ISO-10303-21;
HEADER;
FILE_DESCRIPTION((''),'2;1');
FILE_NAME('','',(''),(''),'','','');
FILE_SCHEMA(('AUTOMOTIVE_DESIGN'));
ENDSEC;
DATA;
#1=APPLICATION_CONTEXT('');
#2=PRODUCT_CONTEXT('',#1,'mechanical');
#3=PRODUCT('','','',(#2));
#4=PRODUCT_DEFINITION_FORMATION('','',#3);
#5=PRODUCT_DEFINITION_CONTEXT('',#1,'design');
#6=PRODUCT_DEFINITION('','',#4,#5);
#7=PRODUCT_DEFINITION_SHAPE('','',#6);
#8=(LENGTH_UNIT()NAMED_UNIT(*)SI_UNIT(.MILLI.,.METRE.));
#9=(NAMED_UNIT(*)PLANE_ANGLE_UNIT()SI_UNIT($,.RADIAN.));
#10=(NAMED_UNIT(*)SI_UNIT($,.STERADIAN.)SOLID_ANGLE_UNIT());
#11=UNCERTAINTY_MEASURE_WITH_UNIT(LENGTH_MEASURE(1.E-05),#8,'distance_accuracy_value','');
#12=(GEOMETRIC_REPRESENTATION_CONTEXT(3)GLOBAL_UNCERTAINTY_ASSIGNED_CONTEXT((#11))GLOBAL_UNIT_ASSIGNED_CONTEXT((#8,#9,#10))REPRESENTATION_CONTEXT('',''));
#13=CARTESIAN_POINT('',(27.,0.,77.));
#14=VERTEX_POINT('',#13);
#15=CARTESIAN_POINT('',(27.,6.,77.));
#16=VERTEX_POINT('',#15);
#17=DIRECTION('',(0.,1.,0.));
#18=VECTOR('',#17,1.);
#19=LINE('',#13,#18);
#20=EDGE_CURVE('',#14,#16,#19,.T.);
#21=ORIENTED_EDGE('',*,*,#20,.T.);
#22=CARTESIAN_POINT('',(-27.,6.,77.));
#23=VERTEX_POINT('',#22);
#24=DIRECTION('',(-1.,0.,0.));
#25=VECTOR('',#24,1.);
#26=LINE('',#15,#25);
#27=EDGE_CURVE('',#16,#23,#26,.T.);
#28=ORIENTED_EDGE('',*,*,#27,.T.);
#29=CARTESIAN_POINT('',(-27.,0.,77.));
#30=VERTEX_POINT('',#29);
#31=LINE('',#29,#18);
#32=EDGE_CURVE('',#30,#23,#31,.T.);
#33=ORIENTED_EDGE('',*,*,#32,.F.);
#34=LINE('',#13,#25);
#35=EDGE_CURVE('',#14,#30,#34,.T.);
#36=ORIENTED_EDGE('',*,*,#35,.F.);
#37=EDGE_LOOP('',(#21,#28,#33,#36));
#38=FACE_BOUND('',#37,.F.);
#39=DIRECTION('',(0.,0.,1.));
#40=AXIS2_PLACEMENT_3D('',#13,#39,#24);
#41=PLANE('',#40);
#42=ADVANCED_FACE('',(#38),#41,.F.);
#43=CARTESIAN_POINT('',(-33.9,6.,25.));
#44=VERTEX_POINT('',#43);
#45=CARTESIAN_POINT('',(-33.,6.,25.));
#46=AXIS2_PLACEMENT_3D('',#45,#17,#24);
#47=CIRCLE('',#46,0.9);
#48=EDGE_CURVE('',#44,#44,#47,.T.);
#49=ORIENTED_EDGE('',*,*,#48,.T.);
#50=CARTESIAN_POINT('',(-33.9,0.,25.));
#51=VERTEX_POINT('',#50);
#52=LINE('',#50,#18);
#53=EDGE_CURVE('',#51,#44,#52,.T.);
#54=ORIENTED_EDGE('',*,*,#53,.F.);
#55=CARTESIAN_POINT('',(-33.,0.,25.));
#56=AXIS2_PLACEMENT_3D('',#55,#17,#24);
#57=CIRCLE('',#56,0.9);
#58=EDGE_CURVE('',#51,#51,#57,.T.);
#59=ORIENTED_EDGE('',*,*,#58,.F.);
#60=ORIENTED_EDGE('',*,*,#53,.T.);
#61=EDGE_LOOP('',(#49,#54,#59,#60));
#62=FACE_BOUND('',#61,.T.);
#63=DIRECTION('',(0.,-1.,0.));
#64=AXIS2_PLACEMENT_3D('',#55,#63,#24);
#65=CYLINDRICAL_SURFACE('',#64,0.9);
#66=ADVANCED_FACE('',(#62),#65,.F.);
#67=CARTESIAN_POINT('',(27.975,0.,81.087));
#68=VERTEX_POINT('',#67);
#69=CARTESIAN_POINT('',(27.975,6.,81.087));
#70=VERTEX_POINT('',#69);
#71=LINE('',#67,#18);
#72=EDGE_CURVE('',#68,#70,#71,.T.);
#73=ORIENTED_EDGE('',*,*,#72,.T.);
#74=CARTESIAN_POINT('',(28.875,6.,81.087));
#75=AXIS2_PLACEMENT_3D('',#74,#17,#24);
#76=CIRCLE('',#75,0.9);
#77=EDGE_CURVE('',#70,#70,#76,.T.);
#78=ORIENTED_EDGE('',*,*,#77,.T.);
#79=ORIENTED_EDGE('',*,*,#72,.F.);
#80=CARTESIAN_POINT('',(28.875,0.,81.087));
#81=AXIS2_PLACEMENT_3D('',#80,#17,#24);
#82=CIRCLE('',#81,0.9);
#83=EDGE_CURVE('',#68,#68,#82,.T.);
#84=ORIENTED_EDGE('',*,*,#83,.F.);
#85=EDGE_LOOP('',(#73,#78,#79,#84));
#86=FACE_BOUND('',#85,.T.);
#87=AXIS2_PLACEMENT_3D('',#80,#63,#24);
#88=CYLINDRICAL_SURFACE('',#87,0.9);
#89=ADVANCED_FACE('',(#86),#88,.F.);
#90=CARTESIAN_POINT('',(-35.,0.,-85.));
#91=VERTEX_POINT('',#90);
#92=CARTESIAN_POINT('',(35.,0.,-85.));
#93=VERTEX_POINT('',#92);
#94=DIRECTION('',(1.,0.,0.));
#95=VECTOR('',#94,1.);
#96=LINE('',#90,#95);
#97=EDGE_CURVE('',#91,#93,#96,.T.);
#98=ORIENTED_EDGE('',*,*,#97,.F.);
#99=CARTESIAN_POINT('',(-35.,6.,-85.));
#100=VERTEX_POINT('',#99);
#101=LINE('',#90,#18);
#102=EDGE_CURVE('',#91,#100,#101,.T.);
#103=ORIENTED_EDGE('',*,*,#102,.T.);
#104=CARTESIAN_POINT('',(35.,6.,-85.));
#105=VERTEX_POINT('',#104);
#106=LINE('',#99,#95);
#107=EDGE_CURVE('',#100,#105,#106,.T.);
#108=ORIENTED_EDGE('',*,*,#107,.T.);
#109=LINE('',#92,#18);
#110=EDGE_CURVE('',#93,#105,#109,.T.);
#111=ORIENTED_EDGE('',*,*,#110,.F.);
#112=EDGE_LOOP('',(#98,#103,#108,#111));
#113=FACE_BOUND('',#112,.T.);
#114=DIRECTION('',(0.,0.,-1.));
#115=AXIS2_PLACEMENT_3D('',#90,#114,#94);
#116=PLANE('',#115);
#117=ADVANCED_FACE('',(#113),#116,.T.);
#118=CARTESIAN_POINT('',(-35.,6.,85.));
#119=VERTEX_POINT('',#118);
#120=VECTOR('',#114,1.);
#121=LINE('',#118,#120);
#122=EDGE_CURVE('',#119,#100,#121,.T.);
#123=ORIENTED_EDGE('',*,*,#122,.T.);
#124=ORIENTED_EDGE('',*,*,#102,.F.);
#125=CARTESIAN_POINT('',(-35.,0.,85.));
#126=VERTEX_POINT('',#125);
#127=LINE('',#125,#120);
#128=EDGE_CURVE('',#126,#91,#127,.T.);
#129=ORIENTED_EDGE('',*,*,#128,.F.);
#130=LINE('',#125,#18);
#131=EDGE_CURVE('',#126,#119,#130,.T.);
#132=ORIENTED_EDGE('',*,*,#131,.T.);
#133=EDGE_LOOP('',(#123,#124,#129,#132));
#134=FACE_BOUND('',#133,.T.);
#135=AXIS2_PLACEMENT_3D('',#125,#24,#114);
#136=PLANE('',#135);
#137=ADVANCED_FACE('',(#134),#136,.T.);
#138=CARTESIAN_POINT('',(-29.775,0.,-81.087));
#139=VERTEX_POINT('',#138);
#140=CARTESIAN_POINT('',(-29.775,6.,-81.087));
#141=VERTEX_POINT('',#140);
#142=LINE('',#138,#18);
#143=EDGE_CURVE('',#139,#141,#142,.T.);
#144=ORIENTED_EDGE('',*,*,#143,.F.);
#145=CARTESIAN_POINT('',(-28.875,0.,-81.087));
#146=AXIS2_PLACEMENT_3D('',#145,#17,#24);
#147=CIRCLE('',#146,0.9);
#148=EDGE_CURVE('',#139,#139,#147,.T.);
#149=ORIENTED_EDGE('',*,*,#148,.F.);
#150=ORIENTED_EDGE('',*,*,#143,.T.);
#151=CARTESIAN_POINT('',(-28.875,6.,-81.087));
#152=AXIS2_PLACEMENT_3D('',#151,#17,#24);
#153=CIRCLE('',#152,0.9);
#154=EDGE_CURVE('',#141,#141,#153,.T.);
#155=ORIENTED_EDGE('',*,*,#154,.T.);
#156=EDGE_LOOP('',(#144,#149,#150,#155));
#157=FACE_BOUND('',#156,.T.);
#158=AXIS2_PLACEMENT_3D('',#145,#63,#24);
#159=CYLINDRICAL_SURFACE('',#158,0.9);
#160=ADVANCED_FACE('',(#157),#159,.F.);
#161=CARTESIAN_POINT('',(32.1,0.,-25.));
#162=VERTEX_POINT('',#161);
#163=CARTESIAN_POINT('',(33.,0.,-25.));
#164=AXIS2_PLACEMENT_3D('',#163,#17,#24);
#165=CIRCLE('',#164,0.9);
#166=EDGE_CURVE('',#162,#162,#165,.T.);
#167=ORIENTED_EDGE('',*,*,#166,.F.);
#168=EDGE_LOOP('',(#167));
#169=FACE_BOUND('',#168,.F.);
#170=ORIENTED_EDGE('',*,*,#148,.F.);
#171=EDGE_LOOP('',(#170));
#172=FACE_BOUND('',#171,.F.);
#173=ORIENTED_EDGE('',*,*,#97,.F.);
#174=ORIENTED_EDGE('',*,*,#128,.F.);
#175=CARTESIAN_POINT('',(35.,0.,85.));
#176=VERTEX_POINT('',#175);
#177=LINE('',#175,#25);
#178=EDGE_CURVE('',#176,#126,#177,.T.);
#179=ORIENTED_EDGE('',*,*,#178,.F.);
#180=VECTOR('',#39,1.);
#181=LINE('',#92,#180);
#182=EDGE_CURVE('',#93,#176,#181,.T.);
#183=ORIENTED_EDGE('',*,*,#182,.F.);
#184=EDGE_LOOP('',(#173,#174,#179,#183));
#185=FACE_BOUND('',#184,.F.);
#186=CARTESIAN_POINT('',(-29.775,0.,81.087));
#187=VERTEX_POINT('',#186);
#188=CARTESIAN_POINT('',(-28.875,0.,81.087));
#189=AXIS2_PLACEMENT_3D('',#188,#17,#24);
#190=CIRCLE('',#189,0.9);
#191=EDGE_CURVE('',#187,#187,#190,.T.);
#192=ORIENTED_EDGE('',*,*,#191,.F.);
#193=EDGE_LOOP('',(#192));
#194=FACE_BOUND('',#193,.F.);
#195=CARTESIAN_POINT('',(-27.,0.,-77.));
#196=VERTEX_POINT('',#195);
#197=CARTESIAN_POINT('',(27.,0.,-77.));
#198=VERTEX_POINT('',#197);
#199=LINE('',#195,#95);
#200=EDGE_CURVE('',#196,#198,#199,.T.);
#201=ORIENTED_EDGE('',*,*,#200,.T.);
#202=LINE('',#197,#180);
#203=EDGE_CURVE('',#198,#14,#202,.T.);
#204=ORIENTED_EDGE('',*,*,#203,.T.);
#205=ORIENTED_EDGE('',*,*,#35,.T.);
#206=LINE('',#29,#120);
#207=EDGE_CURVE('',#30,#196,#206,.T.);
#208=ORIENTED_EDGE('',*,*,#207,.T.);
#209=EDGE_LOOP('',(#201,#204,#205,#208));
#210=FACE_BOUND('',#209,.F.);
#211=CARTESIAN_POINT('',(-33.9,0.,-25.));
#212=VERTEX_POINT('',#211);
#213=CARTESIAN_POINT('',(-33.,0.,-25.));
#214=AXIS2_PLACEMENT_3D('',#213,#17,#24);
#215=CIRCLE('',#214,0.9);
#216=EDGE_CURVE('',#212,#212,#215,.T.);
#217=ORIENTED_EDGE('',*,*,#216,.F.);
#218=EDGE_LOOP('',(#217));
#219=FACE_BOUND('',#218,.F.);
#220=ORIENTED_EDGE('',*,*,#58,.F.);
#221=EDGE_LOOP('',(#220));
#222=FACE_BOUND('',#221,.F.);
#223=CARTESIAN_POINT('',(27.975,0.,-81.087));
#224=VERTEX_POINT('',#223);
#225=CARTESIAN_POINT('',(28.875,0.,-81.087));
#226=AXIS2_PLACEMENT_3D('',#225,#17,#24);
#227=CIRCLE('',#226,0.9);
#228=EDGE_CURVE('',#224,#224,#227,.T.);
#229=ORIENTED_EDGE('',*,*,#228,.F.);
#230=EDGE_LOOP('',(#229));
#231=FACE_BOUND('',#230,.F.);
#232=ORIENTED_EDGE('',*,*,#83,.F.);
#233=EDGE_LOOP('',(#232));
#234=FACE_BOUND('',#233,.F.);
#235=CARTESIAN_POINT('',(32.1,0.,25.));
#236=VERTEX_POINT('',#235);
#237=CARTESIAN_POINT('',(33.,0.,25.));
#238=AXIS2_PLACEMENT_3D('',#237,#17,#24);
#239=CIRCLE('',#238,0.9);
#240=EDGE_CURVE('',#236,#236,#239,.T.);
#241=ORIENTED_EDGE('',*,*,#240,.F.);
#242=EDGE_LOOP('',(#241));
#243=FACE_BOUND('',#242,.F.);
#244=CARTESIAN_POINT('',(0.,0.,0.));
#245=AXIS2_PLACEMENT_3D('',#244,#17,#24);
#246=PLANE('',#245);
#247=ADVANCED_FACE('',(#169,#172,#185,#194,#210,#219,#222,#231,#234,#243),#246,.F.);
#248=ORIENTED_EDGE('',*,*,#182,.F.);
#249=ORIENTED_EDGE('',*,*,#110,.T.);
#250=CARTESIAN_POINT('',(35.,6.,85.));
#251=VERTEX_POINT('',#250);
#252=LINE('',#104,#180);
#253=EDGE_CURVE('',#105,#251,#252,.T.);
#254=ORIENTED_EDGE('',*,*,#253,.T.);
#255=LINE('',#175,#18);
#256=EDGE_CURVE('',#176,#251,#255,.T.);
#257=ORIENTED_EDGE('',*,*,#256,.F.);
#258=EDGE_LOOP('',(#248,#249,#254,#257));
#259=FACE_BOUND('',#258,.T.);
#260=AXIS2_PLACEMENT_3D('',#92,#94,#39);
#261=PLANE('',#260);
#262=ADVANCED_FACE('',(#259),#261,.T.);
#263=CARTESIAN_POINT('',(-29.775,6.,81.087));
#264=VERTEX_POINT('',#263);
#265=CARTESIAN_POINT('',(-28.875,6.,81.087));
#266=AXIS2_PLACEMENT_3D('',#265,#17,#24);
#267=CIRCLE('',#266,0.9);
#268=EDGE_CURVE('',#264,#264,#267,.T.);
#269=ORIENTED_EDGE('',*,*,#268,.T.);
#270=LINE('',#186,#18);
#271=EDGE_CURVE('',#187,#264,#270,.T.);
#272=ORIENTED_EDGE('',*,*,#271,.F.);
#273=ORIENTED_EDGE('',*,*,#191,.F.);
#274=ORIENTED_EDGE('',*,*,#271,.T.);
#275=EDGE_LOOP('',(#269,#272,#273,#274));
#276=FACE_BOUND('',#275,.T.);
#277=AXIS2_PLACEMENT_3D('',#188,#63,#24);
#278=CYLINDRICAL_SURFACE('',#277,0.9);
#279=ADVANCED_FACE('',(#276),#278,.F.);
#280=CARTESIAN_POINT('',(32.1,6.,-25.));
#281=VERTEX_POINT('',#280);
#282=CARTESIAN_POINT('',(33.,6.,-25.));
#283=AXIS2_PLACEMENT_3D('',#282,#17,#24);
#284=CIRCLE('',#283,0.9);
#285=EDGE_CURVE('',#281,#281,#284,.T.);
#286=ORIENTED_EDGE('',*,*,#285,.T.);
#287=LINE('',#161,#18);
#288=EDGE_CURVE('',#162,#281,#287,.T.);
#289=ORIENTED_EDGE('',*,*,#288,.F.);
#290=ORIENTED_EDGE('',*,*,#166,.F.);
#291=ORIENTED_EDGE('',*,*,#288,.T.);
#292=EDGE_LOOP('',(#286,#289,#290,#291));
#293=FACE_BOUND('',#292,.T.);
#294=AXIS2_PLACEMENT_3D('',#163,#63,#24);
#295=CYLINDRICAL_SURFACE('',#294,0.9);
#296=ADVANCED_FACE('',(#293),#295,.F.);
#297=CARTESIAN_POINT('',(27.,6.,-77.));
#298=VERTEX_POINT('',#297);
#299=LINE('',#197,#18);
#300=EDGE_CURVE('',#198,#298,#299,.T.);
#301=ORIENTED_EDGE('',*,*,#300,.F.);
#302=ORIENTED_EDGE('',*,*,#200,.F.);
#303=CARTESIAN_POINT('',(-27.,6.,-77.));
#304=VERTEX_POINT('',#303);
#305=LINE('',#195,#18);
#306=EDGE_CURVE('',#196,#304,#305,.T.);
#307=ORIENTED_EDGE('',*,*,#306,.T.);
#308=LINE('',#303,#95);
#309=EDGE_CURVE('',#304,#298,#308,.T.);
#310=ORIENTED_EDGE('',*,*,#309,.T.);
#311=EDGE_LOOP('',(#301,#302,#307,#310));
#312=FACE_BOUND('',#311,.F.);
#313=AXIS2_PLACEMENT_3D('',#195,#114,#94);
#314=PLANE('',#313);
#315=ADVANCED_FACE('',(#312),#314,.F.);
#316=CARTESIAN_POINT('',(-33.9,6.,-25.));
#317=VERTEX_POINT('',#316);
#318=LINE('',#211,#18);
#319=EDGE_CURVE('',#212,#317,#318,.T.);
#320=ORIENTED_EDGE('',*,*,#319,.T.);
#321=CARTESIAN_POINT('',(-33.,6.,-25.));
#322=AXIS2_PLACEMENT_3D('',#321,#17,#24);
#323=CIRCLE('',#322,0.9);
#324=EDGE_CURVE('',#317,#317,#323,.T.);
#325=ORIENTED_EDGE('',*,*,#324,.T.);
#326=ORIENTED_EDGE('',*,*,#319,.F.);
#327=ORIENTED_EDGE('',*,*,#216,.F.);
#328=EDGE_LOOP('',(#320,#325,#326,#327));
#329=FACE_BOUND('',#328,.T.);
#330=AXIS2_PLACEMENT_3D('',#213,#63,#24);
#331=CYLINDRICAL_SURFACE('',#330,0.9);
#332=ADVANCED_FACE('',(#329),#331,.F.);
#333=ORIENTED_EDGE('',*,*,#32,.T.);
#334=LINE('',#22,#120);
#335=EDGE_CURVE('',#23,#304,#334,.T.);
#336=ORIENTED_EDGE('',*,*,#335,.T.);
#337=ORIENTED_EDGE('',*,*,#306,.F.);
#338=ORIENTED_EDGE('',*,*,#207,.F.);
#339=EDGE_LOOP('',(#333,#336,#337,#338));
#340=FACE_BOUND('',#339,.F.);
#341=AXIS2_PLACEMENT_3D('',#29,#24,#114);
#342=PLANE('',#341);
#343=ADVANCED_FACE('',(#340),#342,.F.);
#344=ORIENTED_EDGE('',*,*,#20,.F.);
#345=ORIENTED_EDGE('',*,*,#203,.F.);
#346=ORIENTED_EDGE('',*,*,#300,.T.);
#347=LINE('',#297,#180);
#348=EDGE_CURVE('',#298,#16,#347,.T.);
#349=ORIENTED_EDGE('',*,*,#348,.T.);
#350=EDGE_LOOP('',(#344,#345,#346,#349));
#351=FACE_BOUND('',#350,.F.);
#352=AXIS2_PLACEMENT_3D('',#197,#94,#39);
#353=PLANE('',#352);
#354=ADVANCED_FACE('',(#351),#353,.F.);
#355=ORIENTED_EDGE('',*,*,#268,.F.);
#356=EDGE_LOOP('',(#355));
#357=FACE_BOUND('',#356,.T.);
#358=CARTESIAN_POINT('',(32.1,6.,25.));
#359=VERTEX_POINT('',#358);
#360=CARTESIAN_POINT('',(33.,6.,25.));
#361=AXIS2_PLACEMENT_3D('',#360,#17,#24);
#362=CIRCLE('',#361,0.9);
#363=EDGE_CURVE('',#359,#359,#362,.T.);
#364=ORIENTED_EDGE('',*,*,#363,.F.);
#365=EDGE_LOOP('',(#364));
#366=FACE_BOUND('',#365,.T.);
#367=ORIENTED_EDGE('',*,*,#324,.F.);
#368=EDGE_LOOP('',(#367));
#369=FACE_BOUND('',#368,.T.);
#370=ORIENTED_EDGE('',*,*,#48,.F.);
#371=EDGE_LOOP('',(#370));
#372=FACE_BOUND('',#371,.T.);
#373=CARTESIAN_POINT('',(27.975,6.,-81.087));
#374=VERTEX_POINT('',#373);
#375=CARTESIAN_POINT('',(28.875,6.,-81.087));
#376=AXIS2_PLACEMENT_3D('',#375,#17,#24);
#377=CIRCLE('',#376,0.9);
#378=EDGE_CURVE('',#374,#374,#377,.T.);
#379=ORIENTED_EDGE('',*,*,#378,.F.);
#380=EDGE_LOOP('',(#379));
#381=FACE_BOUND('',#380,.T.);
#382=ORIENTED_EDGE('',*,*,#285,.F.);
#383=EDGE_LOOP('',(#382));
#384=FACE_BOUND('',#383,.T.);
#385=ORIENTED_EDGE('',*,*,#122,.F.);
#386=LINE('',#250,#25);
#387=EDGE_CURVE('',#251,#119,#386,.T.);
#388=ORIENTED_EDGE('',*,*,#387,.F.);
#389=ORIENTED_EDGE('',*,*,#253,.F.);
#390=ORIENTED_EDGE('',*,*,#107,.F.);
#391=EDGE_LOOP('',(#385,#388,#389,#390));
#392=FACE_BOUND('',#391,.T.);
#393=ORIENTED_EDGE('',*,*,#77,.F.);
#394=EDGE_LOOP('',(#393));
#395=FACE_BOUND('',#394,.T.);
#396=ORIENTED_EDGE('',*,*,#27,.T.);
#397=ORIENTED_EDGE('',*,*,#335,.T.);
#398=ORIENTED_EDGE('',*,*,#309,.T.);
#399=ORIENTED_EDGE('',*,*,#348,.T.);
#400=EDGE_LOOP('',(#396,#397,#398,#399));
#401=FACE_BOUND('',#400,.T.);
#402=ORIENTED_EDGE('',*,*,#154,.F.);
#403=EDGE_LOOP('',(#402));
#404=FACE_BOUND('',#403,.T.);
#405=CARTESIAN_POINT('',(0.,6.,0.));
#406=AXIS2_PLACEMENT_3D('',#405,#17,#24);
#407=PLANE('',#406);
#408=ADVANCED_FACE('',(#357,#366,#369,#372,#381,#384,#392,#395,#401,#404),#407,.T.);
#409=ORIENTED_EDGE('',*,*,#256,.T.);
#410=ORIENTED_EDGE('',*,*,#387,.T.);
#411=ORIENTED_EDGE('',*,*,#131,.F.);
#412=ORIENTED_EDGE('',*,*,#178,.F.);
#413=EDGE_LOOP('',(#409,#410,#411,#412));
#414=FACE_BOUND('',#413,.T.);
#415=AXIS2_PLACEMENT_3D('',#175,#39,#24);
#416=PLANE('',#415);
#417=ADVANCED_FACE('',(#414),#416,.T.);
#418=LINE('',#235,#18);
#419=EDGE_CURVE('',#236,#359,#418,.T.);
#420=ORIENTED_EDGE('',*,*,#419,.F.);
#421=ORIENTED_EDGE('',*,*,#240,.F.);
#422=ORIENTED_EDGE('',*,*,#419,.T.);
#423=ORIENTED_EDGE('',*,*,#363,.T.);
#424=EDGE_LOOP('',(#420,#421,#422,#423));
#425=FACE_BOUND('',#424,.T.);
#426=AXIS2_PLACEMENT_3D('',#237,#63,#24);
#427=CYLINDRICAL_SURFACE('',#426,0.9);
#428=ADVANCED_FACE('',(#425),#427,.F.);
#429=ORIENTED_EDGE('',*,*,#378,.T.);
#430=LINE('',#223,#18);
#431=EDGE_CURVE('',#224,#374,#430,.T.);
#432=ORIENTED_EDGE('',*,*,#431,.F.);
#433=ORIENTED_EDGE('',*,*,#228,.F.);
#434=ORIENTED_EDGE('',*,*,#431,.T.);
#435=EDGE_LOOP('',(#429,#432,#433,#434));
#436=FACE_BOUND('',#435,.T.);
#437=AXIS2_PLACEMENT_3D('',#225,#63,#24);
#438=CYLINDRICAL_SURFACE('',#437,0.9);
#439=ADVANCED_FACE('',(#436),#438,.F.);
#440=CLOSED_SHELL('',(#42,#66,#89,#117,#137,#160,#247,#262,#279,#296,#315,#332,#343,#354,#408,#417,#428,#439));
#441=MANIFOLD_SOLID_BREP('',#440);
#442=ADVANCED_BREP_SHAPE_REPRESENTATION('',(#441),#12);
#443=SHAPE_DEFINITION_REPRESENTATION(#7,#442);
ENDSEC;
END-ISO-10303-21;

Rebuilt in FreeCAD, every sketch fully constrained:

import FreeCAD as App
import Part
import Sketcher

doc = App.newDocument("Part")
params = doc.addObject("Spreadsheet::Sheet", "Params")
for row, (alias, value) in enumerate([
    ("sketch1_diameter", "1.8 mm"),
    ("sketch1_width", "70 mm"),
    ("sketch1_height", "170 mm"),
    ("pad1_length", "6 mm"),
], start=1):
    params.set(f"A{row}", alias)
    params.set(f"B{row}", "=" + value)
    params.setAlias(f"B{row}", alias)

body = doc.addObject("PartDesign::Body", "Body")

sketch1 = body.newObject("Sketcher::SketchObject", "Sketch")
sketch1.AttachmentSupport = (doc.getObject("XZ_Plane"), [""])
sketch1.MapMode = "FlatFace"
sketch1.addGeometry([
    Part.LineSegment(App.Vector(-35, 85, 0), App.Vector(35, 85, 0)),
    Part.LineSegment(App.Vector(35, 85, 0), App.Vector(35, -85, 0)),
    Part.LineSegment(App.Vector(35, -85, 0), App.Vector(-35, -85, 0)),
    Part.LineSegment(App.Vector(-35, -85, 0), App.Vector(-35, 85, 0)),
    Part.Circle(App.Vector(28.9, -81.1, 0), App.Vector(0, 0, 1), 0.9),
    Part.Circle(App.Vector(33, -25, 0), App.Vector(0, 0, 1), 0.9),
    Part.Circle(App.Vector(-28.9, -81.1, 0), App.Vector(0, 0, 1), 0.9),
    Part.Circle(App.Vector(-33, -25, 0), App.Vector(0, 0, 1), 0.9),
    Part.Circle(App.Vector(33, 25, 0), App.Vector(0, 0, 1), 0.9),
    Part.Circle(App.Vector(28.9, 81.1, 0), App.Vector(0, 0, 1), 0.9),
    Part.LineSegment(App.Vector(27, -77, 0), App.Vector(27, 77, 0)),
    Part.LineSegment(App.Vector(27, 77, 0), App.Vector(-27, 77, 0)),
    Part.LineSegment(App.Vector(-27, 77, 0), App.Vector(-27, -77, 0)),
    Part.LineSegment(App.Vector(-27, -77, 0), App.Vector(27, -77, 0)),
    Part.Circle(App.Vector(-33, 25, 0), App.Vector(0, 0, 1), 0.9),
    Part.Circle(App.Vector(-28.9, 81.1, 0), App.Vector(0, 0, 1), 0.9),
], False)
sketch1.addConstraint([
    Sketcher.Constraint("Coincident", 0, 2, 1, 1),
    Sketcher.Constraint("Coincident", 1, 2, 2, 1),
    Sketcher.Constraint("Coincident", 2, 2, 3, 1),
    Sketcher.Constraint("Coincident", 3, 2, 0, 1),
    Sketcher.Constraint("Coincident", 10, 2, 11, 1),
    Sketcher.Constraint("Coincident", 11, 2, 12, 1),
    Sketcher.Constraint("Coincident", 12, 2, 13, 1),
    Sketcher.Constraint("Coincident", 13, 2, 10, 1),
    Sketcher.Constraint("Horizontal", 0),
    Sketcher.Constraint("Vertical", 1),
    Sketcher.Constraint("Horizontal", 2),
    Sketcher.Constraint("Vertical", 3),
    Sketcher.Constraint("Vertical", 10),
    Sketcher.Constraint("Horizontal", 11),
    Sketcher.Constraint("Vertical", 12),
    Sketcher.Constraint("Horizontal", 13),
    Sketcher.Constraint("Equal", 4, 5),
    Sketcher.Constraint("Equal", 5, 6),
    Sketcher.Constraint("Equal", 6, 7),
    Sketcher.Constraint("Equal", 7, 8),
    Sketcher.Constraint("Equal", 8, 9),
    Sketcher.Constraint("Equal", 9, 14),
    Sketcher.Constraint("Equal", 14, 15),
    Sketcher.Constraint("Symmetric", 7, 3, 8, 3, -1, 1),
    Sketcher.Constraint("Symmetric", 6, 3, 9, 3, -1, 1),
    Sketcher.Constraint("Symmetric", 5, 3, 14, 3, -1, 1),
    Sketcher.Constraint("Symmetric", 4, 3, 15, 3, -1, 1),
    Sketcher.Constraint("Symmetric", 0, 2, 2, 2, -1, 1),
    Sketcher.Constraint("Symmetric", 10, 2, 12, 2, -1, 1),
    Sketcher.Constraint("Symmetric", 4, 3, 6, 3, -2),
    Sketcher.Constraint("Symmetric", 5, 3, 7, 3, -2),
    Sketcher.Constraint("Diameter", 4, 1.8),
    Sketcher.Constraint("DistanceX", 0, 1, 0, 2, 70.0),
    Sketcher.Constraint("DistanceY", 1, 2, 1, 1, 170.0),
    Sketcher.Constraint("DistanceX", -1, 1, 5, 3, 33.0),
    Sketcher.Constraint("DistanceY", 5, 3, -1, 1, 25.0),
    Sketcher.Constraint("DistanceX", 10, 2, 0, 2, 8.0),
    Sketcher.Constraint("DistanceY", 10, 2, 0, 2, 8.0),
    Sketcher.Constraint("DistanceX", 6, 3, 4, 3, 57.75),
    Sketcher.Constraint("DistanceY", 4, 3, -1, 1, 81.087),
])
sketch1.setExpression("Constraints[31]", "Params.sketch1_diameter")
sketch1.setExpression("Constraints[32]", "Params.sketch1_width")
sketch1.setExpression("Constraints[33]", "Params.sketch1_height")
pad1 = body.newObject("PartDesign::Pad", "Pad")
pad1.Profile = sketch1
pad1.setExpression("Length", "Params.pad1_length")
pad1.Reversed = True

doc.recompute()
